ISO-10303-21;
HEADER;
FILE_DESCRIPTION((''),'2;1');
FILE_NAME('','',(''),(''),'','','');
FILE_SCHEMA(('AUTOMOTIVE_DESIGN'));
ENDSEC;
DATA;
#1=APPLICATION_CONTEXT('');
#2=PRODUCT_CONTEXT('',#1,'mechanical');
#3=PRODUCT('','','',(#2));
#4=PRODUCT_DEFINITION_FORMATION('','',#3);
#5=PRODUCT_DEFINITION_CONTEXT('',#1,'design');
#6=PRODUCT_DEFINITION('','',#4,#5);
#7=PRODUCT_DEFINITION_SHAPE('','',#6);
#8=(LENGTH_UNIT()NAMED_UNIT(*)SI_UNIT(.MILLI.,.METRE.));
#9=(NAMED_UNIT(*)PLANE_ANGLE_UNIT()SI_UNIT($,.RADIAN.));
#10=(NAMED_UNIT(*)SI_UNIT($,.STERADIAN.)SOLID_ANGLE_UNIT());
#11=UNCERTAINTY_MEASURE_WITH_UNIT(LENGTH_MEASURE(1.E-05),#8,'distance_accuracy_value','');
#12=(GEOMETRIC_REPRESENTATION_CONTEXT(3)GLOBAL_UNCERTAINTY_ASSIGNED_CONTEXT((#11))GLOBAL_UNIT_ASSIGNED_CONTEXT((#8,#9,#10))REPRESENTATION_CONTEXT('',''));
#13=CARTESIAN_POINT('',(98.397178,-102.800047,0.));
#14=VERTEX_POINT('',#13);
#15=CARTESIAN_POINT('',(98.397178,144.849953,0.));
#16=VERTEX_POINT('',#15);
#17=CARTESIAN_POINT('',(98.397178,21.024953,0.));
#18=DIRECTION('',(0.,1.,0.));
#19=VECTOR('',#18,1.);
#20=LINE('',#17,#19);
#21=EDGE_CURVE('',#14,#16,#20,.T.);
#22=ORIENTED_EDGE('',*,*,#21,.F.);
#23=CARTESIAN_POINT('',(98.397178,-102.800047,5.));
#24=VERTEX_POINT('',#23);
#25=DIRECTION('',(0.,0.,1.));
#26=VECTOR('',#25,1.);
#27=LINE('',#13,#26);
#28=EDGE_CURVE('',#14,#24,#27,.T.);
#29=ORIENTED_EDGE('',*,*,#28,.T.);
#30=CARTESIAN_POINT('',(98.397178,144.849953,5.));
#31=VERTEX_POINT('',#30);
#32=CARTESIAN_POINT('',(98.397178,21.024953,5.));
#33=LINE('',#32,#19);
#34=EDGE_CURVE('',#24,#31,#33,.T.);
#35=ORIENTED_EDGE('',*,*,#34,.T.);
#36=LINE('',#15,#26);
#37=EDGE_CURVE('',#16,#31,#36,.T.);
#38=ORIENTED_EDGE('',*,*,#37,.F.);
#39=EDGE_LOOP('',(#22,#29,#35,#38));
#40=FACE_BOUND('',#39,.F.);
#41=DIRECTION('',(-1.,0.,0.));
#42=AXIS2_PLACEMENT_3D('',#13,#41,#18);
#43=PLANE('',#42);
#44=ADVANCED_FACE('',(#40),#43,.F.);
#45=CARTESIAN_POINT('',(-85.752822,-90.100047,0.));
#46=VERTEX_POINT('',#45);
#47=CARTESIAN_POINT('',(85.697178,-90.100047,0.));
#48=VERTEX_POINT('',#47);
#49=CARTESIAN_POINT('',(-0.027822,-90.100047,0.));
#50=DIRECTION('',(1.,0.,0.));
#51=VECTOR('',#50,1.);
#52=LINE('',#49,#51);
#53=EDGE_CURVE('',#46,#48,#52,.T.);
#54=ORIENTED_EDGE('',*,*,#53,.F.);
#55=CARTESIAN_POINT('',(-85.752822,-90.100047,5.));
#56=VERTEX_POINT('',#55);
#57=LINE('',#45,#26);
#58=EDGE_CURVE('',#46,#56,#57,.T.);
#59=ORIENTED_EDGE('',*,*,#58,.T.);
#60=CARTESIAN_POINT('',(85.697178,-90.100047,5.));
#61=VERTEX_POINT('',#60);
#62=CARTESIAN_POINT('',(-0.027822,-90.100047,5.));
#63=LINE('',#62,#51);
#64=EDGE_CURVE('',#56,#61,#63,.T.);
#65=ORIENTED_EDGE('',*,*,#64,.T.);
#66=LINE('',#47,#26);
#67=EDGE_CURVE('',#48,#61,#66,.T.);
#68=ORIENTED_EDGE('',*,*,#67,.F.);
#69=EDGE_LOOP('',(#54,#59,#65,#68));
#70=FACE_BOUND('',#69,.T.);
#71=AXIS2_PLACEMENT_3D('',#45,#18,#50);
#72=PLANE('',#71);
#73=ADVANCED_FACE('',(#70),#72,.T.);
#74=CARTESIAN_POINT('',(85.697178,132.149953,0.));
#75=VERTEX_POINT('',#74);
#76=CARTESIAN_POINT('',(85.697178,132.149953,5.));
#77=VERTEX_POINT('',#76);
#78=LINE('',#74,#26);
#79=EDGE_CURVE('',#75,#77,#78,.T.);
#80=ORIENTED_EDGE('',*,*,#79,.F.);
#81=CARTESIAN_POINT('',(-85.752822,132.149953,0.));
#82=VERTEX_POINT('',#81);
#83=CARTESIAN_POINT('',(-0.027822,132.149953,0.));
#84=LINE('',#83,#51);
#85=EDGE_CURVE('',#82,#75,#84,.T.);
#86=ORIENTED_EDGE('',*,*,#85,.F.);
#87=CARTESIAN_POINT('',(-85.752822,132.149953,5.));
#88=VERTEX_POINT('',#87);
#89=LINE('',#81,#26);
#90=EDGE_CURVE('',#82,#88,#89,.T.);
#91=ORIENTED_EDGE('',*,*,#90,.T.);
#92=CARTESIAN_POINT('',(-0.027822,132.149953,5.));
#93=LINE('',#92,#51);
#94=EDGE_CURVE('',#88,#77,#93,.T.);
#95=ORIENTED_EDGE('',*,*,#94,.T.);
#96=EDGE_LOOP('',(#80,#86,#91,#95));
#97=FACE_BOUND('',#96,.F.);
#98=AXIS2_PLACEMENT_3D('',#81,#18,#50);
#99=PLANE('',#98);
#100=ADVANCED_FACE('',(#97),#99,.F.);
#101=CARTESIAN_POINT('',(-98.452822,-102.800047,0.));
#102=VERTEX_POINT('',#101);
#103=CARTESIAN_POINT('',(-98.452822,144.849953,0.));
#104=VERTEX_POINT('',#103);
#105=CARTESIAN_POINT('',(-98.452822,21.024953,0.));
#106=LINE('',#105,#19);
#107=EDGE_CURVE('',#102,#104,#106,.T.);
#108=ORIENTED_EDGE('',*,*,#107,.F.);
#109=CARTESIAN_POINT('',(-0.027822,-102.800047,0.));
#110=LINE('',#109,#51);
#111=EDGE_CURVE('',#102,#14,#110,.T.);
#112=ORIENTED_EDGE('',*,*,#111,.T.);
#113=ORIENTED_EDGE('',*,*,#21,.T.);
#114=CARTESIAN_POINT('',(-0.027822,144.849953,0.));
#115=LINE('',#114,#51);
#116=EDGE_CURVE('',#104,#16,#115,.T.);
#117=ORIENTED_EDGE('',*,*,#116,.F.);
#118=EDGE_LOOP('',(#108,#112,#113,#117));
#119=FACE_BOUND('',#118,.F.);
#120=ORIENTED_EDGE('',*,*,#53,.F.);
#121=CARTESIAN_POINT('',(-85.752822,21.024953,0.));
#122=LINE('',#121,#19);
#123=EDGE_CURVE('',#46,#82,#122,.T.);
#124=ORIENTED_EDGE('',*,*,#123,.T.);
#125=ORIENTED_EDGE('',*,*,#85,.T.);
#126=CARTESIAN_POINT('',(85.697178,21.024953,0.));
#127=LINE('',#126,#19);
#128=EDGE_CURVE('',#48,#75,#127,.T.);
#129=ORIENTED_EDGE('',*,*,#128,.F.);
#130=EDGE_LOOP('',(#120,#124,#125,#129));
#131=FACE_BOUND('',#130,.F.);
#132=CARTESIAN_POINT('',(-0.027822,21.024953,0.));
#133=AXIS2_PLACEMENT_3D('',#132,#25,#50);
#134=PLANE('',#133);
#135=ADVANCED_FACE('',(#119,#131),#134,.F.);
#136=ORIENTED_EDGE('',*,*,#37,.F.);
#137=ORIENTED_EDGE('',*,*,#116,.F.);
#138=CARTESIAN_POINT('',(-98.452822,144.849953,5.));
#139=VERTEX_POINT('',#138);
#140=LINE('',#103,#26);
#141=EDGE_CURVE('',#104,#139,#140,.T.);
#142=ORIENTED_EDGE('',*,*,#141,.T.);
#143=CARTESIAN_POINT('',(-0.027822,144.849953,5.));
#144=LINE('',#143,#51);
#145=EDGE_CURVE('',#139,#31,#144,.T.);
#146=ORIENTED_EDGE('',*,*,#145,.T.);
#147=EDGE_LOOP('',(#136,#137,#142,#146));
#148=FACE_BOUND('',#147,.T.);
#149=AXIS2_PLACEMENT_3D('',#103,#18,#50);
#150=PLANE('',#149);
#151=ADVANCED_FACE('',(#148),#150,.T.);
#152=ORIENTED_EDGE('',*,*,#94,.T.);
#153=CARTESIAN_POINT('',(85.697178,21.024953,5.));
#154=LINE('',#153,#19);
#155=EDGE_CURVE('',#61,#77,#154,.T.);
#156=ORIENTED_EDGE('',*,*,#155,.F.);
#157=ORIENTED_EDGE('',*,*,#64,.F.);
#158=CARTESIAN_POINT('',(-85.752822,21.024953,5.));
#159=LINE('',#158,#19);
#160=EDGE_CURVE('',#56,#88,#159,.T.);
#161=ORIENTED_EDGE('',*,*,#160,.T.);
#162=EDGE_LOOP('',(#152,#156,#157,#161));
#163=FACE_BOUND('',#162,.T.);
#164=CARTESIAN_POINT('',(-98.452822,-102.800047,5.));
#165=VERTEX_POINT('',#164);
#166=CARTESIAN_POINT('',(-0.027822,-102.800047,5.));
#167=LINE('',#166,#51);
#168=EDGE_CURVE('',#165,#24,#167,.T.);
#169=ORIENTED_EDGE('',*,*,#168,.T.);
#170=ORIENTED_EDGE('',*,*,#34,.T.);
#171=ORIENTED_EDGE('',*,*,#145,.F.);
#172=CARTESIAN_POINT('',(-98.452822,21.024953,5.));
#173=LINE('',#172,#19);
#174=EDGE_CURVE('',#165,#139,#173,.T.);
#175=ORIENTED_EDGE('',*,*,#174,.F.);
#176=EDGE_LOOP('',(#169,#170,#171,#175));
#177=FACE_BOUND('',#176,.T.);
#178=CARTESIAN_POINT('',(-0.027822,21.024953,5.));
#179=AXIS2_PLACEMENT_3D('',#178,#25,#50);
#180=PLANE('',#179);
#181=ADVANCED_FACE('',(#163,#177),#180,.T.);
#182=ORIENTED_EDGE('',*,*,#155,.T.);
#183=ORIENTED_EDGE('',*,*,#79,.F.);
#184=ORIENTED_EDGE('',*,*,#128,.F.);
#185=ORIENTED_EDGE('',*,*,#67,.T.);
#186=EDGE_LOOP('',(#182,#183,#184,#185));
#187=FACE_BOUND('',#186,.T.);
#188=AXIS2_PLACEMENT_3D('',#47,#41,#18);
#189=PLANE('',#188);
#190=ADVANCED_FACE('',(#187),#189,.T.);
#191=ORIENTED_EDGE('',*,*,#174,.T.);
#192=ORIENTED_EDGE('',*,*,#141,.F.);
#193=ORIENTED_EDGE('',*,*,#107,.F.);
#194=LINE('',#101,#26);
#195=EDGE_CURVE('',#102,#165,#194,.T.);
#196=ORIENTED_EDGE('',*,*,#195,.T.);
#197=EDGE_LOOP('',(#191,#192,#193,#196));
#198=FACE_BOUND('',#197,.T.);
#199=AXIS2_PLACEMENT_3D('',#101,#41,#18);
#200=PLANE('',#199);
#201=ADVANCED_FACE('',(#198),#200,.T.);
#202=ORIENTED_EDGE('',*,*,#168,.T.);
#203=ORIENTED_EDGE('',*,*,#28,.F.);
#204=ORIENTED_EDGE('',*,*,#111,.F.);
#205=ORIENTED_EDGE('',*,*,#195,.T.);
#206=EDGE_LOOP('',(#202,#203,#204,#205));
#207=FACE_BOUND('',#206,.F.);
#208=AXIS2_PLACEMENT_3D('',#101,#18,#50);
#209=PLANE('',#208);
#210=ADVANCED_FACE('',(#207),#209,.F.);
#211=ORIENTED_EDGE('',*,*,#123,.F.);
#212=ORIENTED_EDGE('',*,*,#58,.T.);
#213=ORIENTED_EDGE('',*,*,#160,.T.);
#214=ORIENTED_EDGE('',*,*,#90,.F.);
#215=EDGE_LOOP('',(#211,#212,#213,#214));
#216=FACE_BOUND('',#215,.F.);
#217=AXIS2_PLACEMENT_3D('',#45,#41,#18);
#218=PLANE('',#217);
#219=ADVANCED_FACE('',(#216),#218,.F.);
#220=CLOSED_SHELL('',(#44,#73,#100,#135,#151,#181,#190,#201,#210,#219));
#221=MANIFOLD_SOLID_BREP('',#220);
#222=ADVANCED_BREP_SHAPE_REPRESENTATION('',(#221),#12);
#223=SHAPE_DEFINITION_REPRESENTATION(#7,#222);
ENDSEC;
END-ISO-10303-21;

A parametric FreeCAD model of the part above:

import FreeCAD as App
import Part
import Sketcher
from FreeCAD import Vector
Q = App.Units.Quantity


def add_polygon(sketch, points):
    """Adds a closed chain of lines whose ends are joined by coincident constraints."""
    first, n = sketch.GeometryCount, len(points)
    for a, b in zip(points, points[1:] + points[:1]):
        sketch.addGeometry(Part.LineSegment(App.Vector(*a, 0), App.Vector(*b, 0)), False)
    for i in range(n):
        sketch.addConstraint(Sketcher.Constraint("Coincident", first + i, 2, first + (i + 1) % n, 1))

doc = App.newDocument("Part")
params = doc.addObject("Spreadsheet::Sheet", "Params")
for row, (alias, value) in enumerate([
    ("sketch1_width", "7.75 in"),
    ("sketch1_width2", "6.75 in"),
    ("sketch1_height", "9.75 in"),
    ("sketch1_height2", "8.75 in"),
    ("pad1_length", "5 mm"),
    ("sketch2_width", "6.75 in"),
    ("sketch2_height", "8.75 in"),
    ("pocket1_length", "5 mm"),
], start=1):
    params.set(f"A{row}", alias)
    params.set(f"B{row}", "=" + value)
    params.setAlias(f"B{row}", alias)

body = doc.addObject("PartDesign::Body", "Body")

# Sketch on XY plane
sketch1 = body.newObject("Sketcher::SketchObject", "Sketch")
sketch1.AttachmentSupport = (doc.getObject("XY_Plane"), [""])
sketch1.MapMode = "FlatFace"
add_polygon(sketch1, [(-98, 145), (-98, -103), (98, -103), (98, 145)])  # lines 0-3
add_polygon(sketch1, [(86, -90), (-86, -90), (-86, 132), (86, 132)])  # lines 4-7
sketch1.addConstraint([
    Sketcher.Constraint("Vertical", 0),
    Sketcher.Constraint("Horizontal", 1),
    Sketcher.Constraint("Vertical", 2),
    Sketcher.Constraint("Horizontal", 3),
    Sketcher.Constraint("Horizontal", 4),
    Sketcher.Constraint("Vertical", 5),
    Sketcher.Constraint("Horizontal", 6),
    Sketcher.Constraint("Vertical", 7),
    Sketcher.Constraint("DistanceX", 1, 1, 1, 2, Q("7.75 in")),
    Sketcher.Constraint("DistanceX", 4, 2, 4, 1, Q("6.75 in")),
    Sketcher.Constraint("DistanceY", 0, 2, 0, 1, Q("9.75 in")),
    Sketcher.Constraint("DistanceY", 5, 1, 5, 2, Q("8.75 in")),
    Sketcher.Constraint("DistanceX", 0, 2, 4, 2, Q("0.5 in")),
    Sketcher.Constraint("DistanceY", 0, 2, 4, 2, Q("0.5 in")),
    Sketcher.Constraint("DistanceX", 0, 2, -1, 1, Q("98.452822 mm")),
    Sketcher.Constraint("DistanceY", 0, 2, -1, 1, Q("102.800047 mm")),
])
sketch1.setExpression("Constraints[16]", "Params.sketch1_width")
sketch1.setExpression("Constraints[17]", "Params.sketch1_width2")
sketch1.setExpression("Constraints[18]", "Params.sketch1_height")
sketch1.setExpression("Constraints[19]", "Params.sketch1_height2")
pad1 = body.newObject("PartDesign::Pad", "Pad")
pad1.Profile = sketch1
pad1.setExpression("Length", "Params.pad1_length")

# Sketch on XY plane
sketch2 = body.newObject("Sketcher::SketchObject", "Sketch001")
sketch2.AttachmentSupport = (doc.getObject("XY_Plane"), [""])
sketch2.MapMode = "FlatFace"
add_polygon(sketch2, [(-86, 132), (-86, -90), (86, -90), (86, 132)])  # lines 0-3
sketch2.addConstraint([
    Sketcher.Constraint("Vertical", 0),
    Sketcher.Constraint("Horizontal", 1),
    Sketcher.Constraint("Vertical", 2),
    Sketcher.Constraint("Horizontal", 3),
    Sketcher.Constraint("DistanceX", 1, 1, 1, 2, Q("6.75 in")),
    Sketcher.Constraint("DistanceY", 0, 2, 0, 1, Q("8.75 in")),
    Sketcher.Constraint("DistanceX", 0, 2, -1, 1, Q("85.752822 mm")),
    Sketcher.Constraint("DistanceY", 0, 2, -1, 1, Q("90.100047 mm")),
])
sketch2.setExpression("Constraints[8]", "Params.sketch2_width")
sketch2.setExpression("Constraints[9]", "Params.sketch2_height")
pocket1 = body.newObject("PartDesign::Pocket", "Pocket")
pocket1.Profile = sketch2
pocket1.setExpression("Length", "Params.pocket1_length")
pocket1.Reversed = True

doc.recompute()
